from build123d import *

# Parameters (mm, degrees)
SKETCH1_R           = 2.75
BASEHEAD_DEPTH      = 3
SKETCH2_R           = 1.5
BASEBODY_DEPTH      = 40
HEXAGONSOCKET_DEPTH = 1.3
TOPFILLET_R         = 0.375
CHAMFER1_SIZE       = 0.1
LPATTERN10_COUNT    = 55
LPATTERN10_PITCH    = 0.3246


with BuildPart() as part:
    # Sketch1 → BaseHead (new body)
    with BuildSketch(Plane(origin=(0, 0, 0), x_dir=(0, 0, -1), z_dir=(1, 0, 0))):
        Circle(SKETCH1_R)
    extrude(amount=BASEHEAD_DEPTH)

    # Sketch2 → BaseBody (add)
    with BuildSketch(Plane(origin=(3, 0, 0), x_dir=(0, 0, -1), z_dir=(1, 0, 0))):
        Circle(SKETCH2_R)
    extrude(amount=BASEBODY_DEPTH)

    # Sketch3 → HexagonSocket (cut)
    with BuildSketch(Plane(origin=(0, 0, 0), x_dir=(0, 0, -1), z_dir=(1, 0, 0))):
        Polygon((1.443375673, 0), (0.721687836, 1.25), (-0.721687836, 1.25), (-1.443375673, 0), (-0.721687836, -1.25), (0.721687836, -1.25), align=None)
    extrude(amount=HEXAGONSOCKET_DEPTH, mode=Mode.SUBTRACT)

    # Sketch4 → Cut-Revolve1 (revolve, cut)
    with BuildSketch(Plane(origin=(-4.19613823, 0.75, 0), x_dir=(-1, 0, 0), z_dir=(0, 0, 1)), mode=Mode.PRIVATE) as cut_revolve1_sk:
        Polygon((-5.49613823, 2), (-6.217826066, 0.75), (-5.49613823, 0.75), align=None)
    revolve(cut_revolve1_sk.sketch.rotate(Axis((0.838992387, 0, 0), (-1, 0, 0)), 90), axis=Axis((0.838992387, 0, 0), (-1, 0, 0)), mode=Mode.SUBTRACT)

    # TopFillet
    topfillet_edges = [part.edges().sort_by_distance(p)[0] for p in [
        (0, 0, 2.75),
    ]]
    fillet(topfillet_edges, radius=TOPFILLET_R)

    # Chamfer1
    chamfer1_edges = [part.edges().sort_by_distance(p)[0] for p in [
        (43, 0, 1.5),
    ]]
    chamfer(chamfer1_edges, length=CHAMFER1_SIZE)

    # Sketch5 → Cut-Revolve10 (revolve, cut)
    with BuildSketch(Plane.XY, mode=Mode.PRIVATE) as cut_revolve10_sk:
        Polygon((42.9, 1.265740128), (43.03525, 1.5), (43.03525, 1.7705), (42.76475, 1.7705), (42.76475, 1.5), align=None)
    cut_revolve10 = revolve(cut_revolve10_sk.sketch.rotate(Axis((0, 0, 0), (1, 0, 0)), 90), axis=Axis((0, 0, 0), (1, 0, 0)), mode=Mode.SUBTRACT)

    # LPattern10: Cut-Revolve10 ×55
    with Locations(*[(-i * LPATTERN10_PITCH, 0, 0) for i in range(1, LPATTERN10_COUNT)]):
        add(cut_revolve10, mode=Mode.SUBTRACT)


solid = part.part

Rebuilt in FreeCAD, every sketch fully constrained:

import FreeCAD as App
import Part
import Sketcher
Q = App.Units.Quantity


def edges_at(feature, points):
    """Names of the edges that pass closest to the given points."""
    edges = feature.Shape.Edges
    near = lambda p: min(range(len(edges)), key=lambda i: edges[i].distToShape(Part.Vertex(*p))[0])
    return sorted({f"Edge{near(p) + 1}" for p in points})

doc = App.newDocument("Part")
body = doc.addObject("PartDesign::Body", "Body")

# Sketch on YZ plane
sketch1 = body.newObject("Sketcher::SketchObject", "Sketch")
sketch1.AttachmentSupport = (doc.getObject("YZ_Plane"), [""])
sketch1.MapMode = "FlatFace"
sketch1.addGeometry(Part.Circle(App.Vector(0, 0, 0), App.Vector(0, 0, 1), 2.75), False)
sketch1.addConstraint([
    Sketcher.Constraint("Coincident", 0, 3, -1, 1),
    Sketcher.Constraint("Diameter", 0, Q("5.5 mm")),
])
pad1 = body.newObject("PartDesign::Pad", "Pad")
pad1.Profile = sketch1
pad1.Length = 3

# Sketch on YZ plane
sketch2 = body.newObject("Sketcher::SketchObject", "Sketch001")
sketch2.AttachmentSupport = (doc.getObject("YZ_Plane"), [""])
sketch2.MapMode = "FlatFace"
sketch2.AttachmentOffset = App.Placement(App.Vector(0, 0, 3), App.Rotation())
sketch2.addGeometry(Part.Circle(App.Vector(0, 0, 0), App.Vector(0, 0, 1), 1.5), False)
sketch2.addConstraint([
    Sketcher.Constraint("Coincident", 0, 3, -1, 1),
    Sketcher.Constraint("Diameter", 0, Q("3 mm")),
])
pad2 = body.newObject("PartDesign::Pad", "Pad001")
pad2.Profile = sketch2
pad2.Length = 40

# Sketch on YZ plane
sketch3 = body.newObject("Sketcher::SketchObject", "Sketch002")
sketch3.AttachmentSupport = (doc.getObject("YZ_Plane"), [""])
sketch3.MapMode = "FlatFace"
sketch3.addGeometry([
    Part.LineSegment(App.Vector(0, -1.443376, 0), App.Vector(1.25, -0.721688, 0)),  # 0
    Part.LineSegment(App.Vector(1.25, -0.721688, 0), App.Vector(1.25, 0.721688, 0)),  # 1
    Part.LineSegment(App.Vector(1.25, 0.721688, 0), App.Vector(0, 1.443376, 0)),  # 2
    Part.LineSegment(App.Vector(0, 1.443376, 0), App.Vector(-1.25, 0.721688, 0)),  # 3
    Part.LineSegment(App.Vector(-1.25, 0.721688, 0), App.Vector(-1.25, -0.721688, 0)),  # 4
    Part.LineSegment(App.Vector(-1.25, -0.721688, 0), App.Vector(0, -1.443376, 0)),  # 5
], False)
sketch3.addConstraint([
    Sketcher.Constraint("Coincident", 0, 2, 1, 1),
    Sketcher.Constraint("Coincident", 1, 2, 2, 1),
    Sketcher.Constraint("Coincident", 2, 2, 3, 1),
    Sketcher.Constraint("Coincident", 3, 2, 4, 1),
    Sketcher.Constraint("Coincident", 4, 2, 5, 1),
    Sketcher.Constraint("Coincident", 5, 2, 0, 1),
    Sketcher.Constraint("Vertical", 1),
    Sketcher.Constraint("Vertical", 4),
    Sketcher.Constraint("Symmetric", 0, 2, 3, 2, -1, 1),
    Sketcher.Constraint("Symmetric", 2, 2, 5, 2, -1, 1),
    Sketcher.Constraint("PointOnObject", 2, 2, -2),
    Sketcher.Constraint("Parallel", 2, 5),
    Sketcher.Constraint("Horizontal", 1, 2, 3, 2),
    Sketcher.Constraint("Angle", 0, Q("30 deg")),
    Sketcher.Constraint("DistanceX", 3, 2, 1, 2, Q("2.5 mm")),
    Sketcher.Constraint("DistanceY", 1, 1, 1, 2, Q("1.443376 mm")),
])
pocket1 = body.newObject("PartDesign::Pocket", "Pocket")
pocket1.Profile = sketch3
pocket1.Length = 1.3
pocket1.Reversed = True

# Sketch on XY plane
sketch4 = body.newObject("Sketcher::SketchObject", "Sketch003")
sketch4.AttachmentSupport = (doc.getObject("XY_Plane"), [""])
sketch4.MapMode = "FlatFace"
sketch4.addGeometry([
    Part.LineSegment(App.Vector(1.3, -1.25, 0), App.Vector(2.021688, 0, 0)),
    Part.LineSegment(App.Vector(2.021688, 0, 0), App.Vector(1.3, 0, 0)),
    Part.LineSegment(App.Vector(1.3, 0, 0), App.Vector(1.3, -1.25, 0)),
], False)
sketch4.addConstraint([
    Sketcher.Constraint("Coincident", 0, 2, 1, 1),
    Sketcher.Constraint("Coincident", 1, 2, 2, 1),
    Sketcher.Constraint("Coincident", 2, 2, 0, 1),
    Sketcher.Constraint("Horizontal", 1),
    Sketcher.Constraint("Vertical", 2),
    Sketcher.Constraint("PointOnObject", 0, 2, -1),
    Sketcher.Constraint("Angle", 0, Q("60 deg")),
    Sketcher.Constraint("DistanceY", 2, 2, 2, 1, Q("1.25 mm")),
    Sketcher.Constraint("DistanceX", -1, 1, 1, 2, Q("1.3 mm")),
])
groove = body.newObject("PartDesign::Groove", "Groove")
groove.Profile = sketch4
groove.ReferenceAxis = (sketch4, ["H_Axis"])
groove.Angle = 360
doc.recompute()

fillet = body.newObject("PartDesign::Fillet", "Fillet")
fillet.Base = (groove, edges_at(groove, [(0, 0, 2.75)]))
fillet.Radius = 0.375
doc.recompute()

chamfer = body.newObject("PartDesign::Chamfer", "Chamfer")
chamfer.Base = (fillet, edges_at(fillet, [(43, 0, 1.5)]))
chamfer.Size = 0.1

# Sketch on XY plane
sketch5 = body.newObject("Sketcher::SketchObject", "Sketch004")
sketch5.AttachmentSupport = (doc.getObject("XY_Plane"), [""])
sketch5.MapMode = "FlatFace"
sketch5.addGeometry([
    Part.LineSegment(App.Vector(42.9, 1.26574, 0), App.Vector(43.03525, 1.5, 0)),  # 0
    Part.LineSegment(App.Vector(43.03525, 1.5, 0), App.Vector(43.03525, 1.7705, 0)),  # 1
    Part.LineSegment(App.Vector(43.03525, 1.7705, 0), App.Vector(42.76475, 1.7705, 0)),  # 2
    Part.LineSegment(App.Vector(42.76475, 1.7705, 0), App.Vector(42.76475, 1.5, 0)),  # 3
    Part.LineSegment(App.Vector(42.76475, 1.5, 0), App.Vector(42.9, 1.26574, 0)),  # 4
], False)
sketch5.addConstraint([
    Sketcher.Constraint("Coincident", 0, 2, 1, 1),
    Sketcher.Constraint("Coincident", 1, 2, 2, 1),
    Sketcher.Constraint("Coincident", 2, 2, 3, 1),
    Sketcher.Constraint("Coincident", 3, 2, 4, 1),
    Sketcher.Constraint("Coincident", 4, 2, 0, 1),
    Sketcher.Constraint("Vertical", 1),
    Sketcher.Constraint("Horizontal", 2),
    Sketcher.Constraint("Vertical", 3),
    Sketcher.Constraint("Horizontal", 0, 2, 3, 2),
    Sketcher.Constraint("Equal", 2, 1),
    Sketcher.Constraint("Equal", 0, 4),
    Sketcher.Constraint("Angle", 0, Q("60 deg")),
    Sketcher.Constraint("DistanceY", -1, 1, 0, 2, Q("1.5 mm")),
    Sketcher.Constraint("DistanceX", -1, 1, 4, 2, Q("42.9 mm")),
    Sketcher.Constraint("DistanceX", 2, 2, 2, 1, Q("0.2705 mm")),
])
groove2 = body.newObject("PartDesign::Groove", "Groove001")
groove2.Profile = sketch5
groove2.ReferenceAxis = (sketch5, ["H_Axis"])
groove2.Angle = 360
doc.recompute()

linearpattern = body.newObject("PartDesign::LinearPattern", "LinearPattern")
linearpattern.Originals = [groove2]
linearpattern.Direction = (doc.getObject("X_Axis"), [""])
linearpattern.Mode = "offset"
linearpattern.Offset = 0.3246
linearpattern.Occurrences = 55
linearpattern.Reversed = True
body.Tip = linearpattern

doc.recompute()
